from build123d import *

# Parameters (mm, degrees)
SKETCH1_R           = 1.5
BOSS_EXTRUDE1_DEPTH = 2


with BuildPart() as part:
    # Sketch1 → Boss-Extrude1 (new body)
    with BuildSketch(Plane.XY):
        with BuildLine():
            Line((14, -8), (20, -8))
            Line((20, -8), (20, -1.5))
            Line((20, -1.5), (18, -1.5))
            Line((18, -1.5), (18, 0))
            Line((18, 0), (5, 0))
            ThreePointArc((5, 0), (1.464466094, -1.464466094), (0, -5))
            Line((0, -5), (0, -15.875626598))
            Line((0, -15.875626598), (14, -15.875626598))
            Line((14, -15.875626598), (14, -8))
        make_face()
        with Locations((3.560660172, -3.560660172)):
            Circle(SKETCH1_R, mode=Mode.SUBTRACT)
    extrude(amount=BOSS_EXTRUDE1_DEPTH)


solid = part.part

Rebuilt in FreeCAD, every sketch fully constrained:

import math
import FreeCAD as App
import Part
import Sketcher

doc = App.newDocument("Part")
body = doc.addObject("PartDesign::Body", "Body")

# Sketch on XY plane
sketch1 = body.newObject("Sketcher::SketchObject", "Sketch")
sketch1.AttachmentSupport = (doc.getObject("XY_Plane"), [""])
sketch1.MapMode = "FlatFace"
sketch1.addGeometry([
    Part.LineSegment(App.Vector(14, -8, 0), App.Vector(20, -8, 0)),  # 0
    Part.LineSegment(App.Vector(20, -8, 0), App.Vector(20, -1.5, 0)),  # 1
    Part.LineSegment(App.Vector(20, -1.5, 0), App.Vector(18, -1.5, 0)),  # 2
    Part.LineSegment(App.Vector(18, -1.5, 0), App.Vector(18, 0, 0)),  # 3
    Part.LineSegment(App.Vector(18, 0, 0), App.Vector(5, 0, 0)),  # 4
    Part.ArcOfCircle(Part.Circle(App.Vector(5, -5, 0), App.Vector(0, 0, 1), 5), math.radians(90), math.radians(180)),  # 5
    Part.LineSegment(App.Vector(0, -5, 0), App.Vector(0, -15.9, 0)),  # 6
    Part.LineSegment(App.Vector(0, -15.9, 0), App.Vector(14, -15.9, 0)),  # 7
    Part.LineSegment(App.Vector(14, -15.9, 0), App.Vector(14, -8, 0)),  # 8
    Part.Circle(App.Vector(3.6, -3.6, 0), App.Vector(0, 0, 1), 1.5),  # 9
], False)
sketch1.addConstraint([
    Sketcher.Constraint("Coincident", 0, 2, 1, 1),
    Sketcher.Constraint("Coincident", 1, 2, 2, 1),
    Sketcher.Constraint("Coincident", 2, 2, 3, 1),
    Sketcher.Constraint("Coincident", 3, 2, 4, 1),
    Sketcher.Constraint("Tangent", 4, 2, 5, 1),
    Sketcher.Constraint("Tangent", 5, 2, 6, 1),
    Sketcher.Constraint("Coincident", 6, 2, 7, 1),
    Sketcher.Constraint("Coincident", 7, 2, 8, 1),
    Sketcher.Constraint("Coincident", 8, 2, 0, 1),
    Sketcher.Constraint("Horizontal", 0),
    Sketcher.Constraint("Vertical", 1),
    Sketcher.Constraint("Horizontal", 2),
    Sketcher.Constraint("Vertical", 3),
    Sketcher.Constraint("Horizontal", 4),
    Sketcher.Constraint("Vertical", 6),
    Sketcher.Constraint("Horizontal", 7),
    Sketcher.Constraint("Vertical", 8),
    Sketcher.Constraint("PointOnObject", 3, 2, -1),
    Sketcher.Constraint("PointOnObject", 5, 2, -2),
    Sketcher.Constraint("Diameter", 9, 3.0),
    Sketcher.Constraint("Radius", 5, 5.0),
    Sketcher.Constraint("DistanceX", 0, 1, 0, 2, 6.0),
    Sketcher.Constraint("DistanceX", 2, 2, 2, 1, 2.0),
    Sketcher.Constraint("DistanceX", 4, 2, 4, 1, 13.0),
    Sketcher.Constraint("DistanceY", 1, 1, 1, 2, 6.5),
    Sketcher.Constraint("DistanceY", 3, 1, 3, 2, 1.5),
    Sketcher.Constraint("DistanceY", 6, 2, 6, 1, 10.875627),
    Sketcher.Constraint("DistanceX", -1, 1, 9, 3, 3.56066),
    Sketcher.Constraint("DistanceY", 9, 3, -1, 1, 3.56066),
])
pad1 = body.newObject("PartDesign::Pad", "Pad")
pad1.Profile = sketch1
pad1.Length = 2

doc.recompute()
